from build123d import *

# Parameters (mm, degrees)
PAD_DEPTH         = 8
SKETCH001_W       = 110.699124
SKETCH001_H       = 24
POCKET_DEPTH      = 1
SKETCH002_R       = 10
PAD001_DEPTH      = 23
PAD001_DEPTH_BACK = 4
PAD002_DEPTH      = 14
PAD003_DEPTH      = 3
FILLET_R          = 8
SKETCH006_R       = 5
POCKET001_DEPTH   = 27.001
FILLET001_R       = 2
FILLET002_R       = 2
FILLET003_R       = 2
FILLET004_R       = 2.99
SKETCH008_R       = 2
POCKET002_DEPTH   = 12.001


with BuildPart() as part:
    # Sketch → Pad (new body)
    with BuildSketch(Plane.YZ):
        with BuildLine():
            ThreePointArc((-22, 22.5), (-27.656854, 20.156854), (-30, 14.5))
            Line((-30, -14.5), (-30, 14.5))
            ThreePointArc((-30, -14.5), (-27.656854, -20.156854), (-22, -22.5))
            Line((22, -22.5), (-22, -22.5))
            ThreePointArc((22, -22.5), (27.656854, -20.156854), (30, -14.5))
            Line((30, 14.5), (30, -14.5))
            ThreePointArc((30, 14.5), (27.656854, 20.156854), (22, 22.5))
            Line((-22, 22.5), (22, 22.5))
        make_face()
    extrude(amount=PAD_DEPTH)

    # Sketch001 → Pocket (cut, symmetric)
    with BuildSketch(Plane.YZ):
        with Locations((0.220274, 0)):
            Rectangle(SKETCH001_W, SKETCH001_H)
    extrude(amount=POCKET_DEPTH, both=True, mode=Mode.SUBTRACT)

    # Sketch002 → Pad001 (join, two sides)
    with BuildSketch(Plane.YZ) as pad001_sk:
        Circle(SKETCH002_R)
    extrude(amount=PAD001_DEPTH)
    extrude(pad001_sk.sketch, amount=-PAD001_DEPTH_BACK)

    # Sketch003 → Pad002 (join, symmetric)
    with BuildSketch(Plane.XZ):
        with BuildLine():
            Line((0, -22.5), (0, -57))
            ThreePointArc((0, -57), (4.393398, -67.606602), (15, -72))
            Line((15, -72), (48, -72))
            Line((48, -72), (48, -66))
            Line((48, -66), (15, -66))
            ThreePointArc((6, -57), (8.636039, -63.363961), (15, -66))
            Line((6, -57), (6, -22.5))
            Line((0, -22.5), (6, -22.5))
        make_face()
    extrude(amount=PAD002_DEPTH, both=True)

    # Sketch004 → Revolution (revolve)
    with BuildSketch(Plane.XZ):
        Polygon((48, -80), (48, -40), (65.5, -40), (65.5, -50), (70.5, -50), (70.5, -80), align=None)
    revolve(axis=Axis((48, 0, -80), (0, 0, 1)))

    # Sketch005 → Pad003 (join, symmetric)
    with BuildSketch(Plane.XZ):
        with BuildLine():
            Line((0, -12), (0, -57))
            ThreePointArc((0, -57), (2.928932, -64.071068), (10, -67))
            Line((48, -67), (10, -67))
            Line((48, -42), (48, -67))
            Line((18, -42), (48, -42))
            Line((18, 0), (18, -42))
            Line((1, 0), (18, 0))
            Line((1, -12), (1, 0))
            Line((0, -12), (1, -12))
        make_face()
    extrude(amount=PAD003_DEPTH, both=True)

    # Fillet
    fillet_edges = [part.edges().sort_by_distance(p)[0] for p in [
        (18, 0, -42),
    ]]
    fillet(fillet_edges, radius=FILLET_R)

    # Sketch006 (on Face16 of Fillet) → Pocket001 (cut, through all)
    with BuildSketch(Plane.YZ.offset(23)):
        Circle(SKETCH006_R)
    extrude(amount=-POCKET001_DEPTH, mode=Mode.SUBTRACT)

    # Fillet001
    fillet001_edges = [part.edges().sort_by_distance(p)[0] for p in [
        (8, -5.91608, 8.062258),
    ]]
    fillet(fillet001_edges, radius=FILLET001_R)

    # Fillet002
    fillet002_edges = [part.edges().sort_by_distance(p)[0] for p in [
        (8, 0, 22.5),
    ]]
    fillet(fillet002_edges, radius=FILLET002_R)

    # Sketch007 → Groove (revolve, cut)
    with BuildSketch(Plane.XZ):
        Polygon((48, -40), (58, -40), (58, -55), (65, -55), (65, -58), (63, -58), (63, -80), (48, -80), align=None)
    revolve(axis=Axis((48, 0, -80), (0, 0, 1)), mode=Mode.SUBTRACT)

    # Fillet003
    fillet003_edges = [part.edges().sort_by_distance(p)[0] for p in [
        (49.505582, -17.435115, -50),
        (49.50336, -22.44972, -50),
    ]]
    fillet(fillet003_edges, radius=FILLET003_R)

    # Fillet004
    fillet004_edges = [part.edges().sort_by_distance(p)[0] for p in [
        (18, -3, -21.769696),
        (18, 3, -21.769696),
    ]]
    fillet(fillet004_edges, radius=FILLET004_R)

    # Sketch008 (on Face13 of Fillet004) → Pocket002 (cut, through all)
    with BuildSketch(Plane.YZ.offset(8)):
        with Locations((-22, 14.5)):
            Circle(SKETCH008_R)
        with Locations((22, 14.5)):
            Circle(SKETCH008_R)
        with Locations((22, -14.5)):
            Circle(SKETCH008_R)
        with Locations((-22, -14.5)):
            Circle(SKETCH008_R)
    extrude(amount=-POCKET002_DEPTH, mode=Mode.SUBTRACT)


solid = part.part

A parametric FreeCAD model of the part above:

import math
import FreeCAD as App
import Part
import Sketcher
from FreeCAD import Vector


def edges_at(feature, points):
    """Names of the edges that pass closest to the given points."""
    edges = feature.Shape.Edges
    near = lambda p: min(range(len(edges)), key=lambda i: edges[i].distToShape(Part.Vertex(*p))[0])
    return sorted({f"Edge{near(p) + 1}" for p in points})


def add_polygon(sketch, points):
    """Adds a closed chain of lines whose ends are joined by coincident constraints."""
    first, n = sketch.GeometryCount, len(points)
    for a, b in zip(points, points[1:] + points[:1]):
        sketch.addGeometry(Part.LineSegment(App.Vector(*a, 0), App.Vector(*b, 0)), False)
    for i in range(n):
        sketch.addConstraint(Sketcher.Constraint("Coincident", first + i, 2, first + (i + 1) % n, 1))

doc = App.newDocument("Part")
params = doc.addObject("Spreadsheet::Sheet", "Params")
for row, (alias, value) in enumerate([
    ("sketch1_radius", "8.000001 mm"),
    ("sketch1_width", "44 mm"),
    ("sketch1_height", "29 mm"),
    ("pad1_length", "8 mm"),
    ("sketch2_height", "24 mm"),
    ("pocket1_length", "2 mm"),
    ("sketch3_diameter", "20 mm"),
    ("pad2_length", "23 mm"),
    ("pad2_length2", "4 mm"),
    ("sketch4_radius", "14.999999 mm"),
    ("sketch4_radius2", "9 mm"),
    ("sketch4_width", "33 mm"),
    ("sketch4_height", "34.5 mm"),
    ("pad3_length", "28 mm"),
    ("sketch5_width", "5 mm"),
    ("sketch5_height", "40 mm"),
    ("sketch5_height2", "30 mm"),
    ("sketch5_width2", "22.5 mm"),
    ("revolution_angle", "360 deg"),
    ("sketch6_radius", "9.999999 mm"),
    ("sketch6_width", "38 mm"),
    ("sketch6_width2", "30 mm"),
    ("sketch6_width3", "17 mm"),
    ("sketch6_height", "45 mm"),
    ("pad4_length", "6 mm"),
    ("fillet_radius", "8 mm"),
    ("sketch7_diameter", "10 mm"),
    ("fillet2_radius", "2 mm"),
    ("fillet3_radius", "2 mm"),
    ("sketch8_width", "10 mm"),
    ("sketch8_width2", "15 mm"),
    ("sketch8_width3", "2 mm"),
    ("sketch8_height", "40 mm"),
    ("sketch8_height2", "22 mm"),
    ("groove_angle", "360 deg"),
    ("fillet4_radius", "2 mm"),
    ("fillet5_radius", "2.99 mm"),
    ("sketch9_diameter", "4 mm"),
], start=1):
    params.set(f"A{row}", alias)
    params.set(f"B{row}", "=" + value)
    params.setAlias(f"B{row}", alias)

body = doc.addObject("PartDesign::Body", "Body")

# Sketch on YZ plane
sketch1 = doc.addObject("Sketcher::SketchObject", "Sketch")
body.addObject(sketch1)
sketch1.AttachmentSupport = (doc.YZ_Plane, [""])
sketch1.MapMode = "FlatFace"
sketch1.addGeometry(Part.ArcOfCircle(Part.Circle(Vector(-22, 14, 0), Vector(0, 0, 1), 8), math.radians(90), math.radians(180)), False)
sketch1.addGeometry(Part.LineSegment(Vector(-30, 14, 0), Vector(-30, -14, 0)), False)
sketch1.addGeometry(Part.ArcOfCircle(Part.Circle(Vector(-22, -14, 0), Vector(0, 0, 1), 8), math.radians(-180), math.radians(-90)), False)
sketch1.addGeometry(Part.LineSegment(Vector(-22, -22, 0), Vector(22, -22, 0)), False)
sketch1.addGeometry(Part.ArcOfCircle(Part.Circle(Vector(22, -14, 0), Vector(0, 0, 1), 8), math.radians(-90), math.radians(0)), False)
sketch1.addGeometry(Part.LineSegment(Vector(30, -14, 0), Vector(30, 14, 0)), False)
sketch1.addGeometry(Part.ArcOfCircle(Part.Circle(Vector(22, 14, 0), Vector(0, 0, 1), 8), math.radians(0), math.radians(90)), False)
sketch1.addGeometry(Part.LineSegment(Vector(22, 22, 0), Vector(-22, 22, 0)), False)
sketch1.addConstraint(Sketcher.Constraint("Tangent", 0, 2, 1, 1))
sketch1.addConstraint(Sketcher.Constraint("Tangent", 1, 2, 2, 1))
sketch1.addConstraint(Sketcher.Constraint("Tangent", 2, 2, 3, 1))
sketch1.addConstraint(Sketcher.Constraint("Tangent", 3, 2, 4, 1))
sketch1.addConstraint(Sketcher.Constraint("Tangent", 4, 2, 5, 1))
sketch1.addConstraint(Sketcher.Constraint("Tangent", 5, 2, 6, 1))
sketch1.addConstraint(Sketcher.Constraint("Tangent", 6, 2, 7, 1))
sketch1.addConstraint(Sketcher.Constraint("Tangent", 7, 2, 0, 1))
sketch1.addConstraint(Sketcher.Constraint("Vertical", 1))
sketch1.addConstraint(Sketcher.Constraint("Horizontal", 3))
sketch1.addConstraint(Sketcher.Constraint("Vertical", 5))
sketch1.addConstraint(Sketcher.Constraint("Horizontal", 7))
sketch1.addConstraint(Sketcher.Constraint("Equal", 0, 2))
sketch1.addConstraint(Sketcher.Constraint("Equal", 2, 4))
sketch1.addConstraint(Sketcher.Constraint("Equal", 4, 6))
sketch1.addConstraint(Sketcher.Constraint("Symmetric", 0, 3, 4, 3, -1, 1))
sketch1.addConstraint(Sketcher.Constraint("Radius", 0, 8.000001))
sketch1.addConstraint(Sketcher.Constraint("DistanceX", 3, 1, 3, 2, 44.0))
sketch1.addConstraint(Sketcher.Constraint("DistanceY", 1, 2, 1, 1, 29.0))
sketch1.setExpression("Constraints[16]", "Params.sketch1_radius")
sketch1.setExpression("Constraints[17]", "Params.sketch1_width")
sketch1.setExpression("Constraints[18]", "Params.sketch1_height")
pad1 = doc.addObject("PartDesign::Pad", "Pad")
body.addObject(pad1)
pad1.Profile = sketch1
pad1.setExpression("Length", "Params.pad1_length")

# Sketch on YZ plane
sketch2 = doc.addObject("Sketcher::SketchObject", "Sketch001")
body.addObject(sketch2)
sketch2.AttachmentSupport = (doc.YZ_Plane, [""])
sketch2.MapMode = "FlatFace"
add_polygon(sketch2, [(-55, 12), (-55, -12), (56, -12), (56, 12)])  # lines 0-3
sketch2.addConstraint(Sketcher.Constraint("Vertical", 0))
sketch2.addConstraint(Sketcher.Constraint("Horizontal", 1))
sketch2.addConstraint(Sketcher.Constraint("Vertical", 2))
sketch2.addConstraint(Sketcher.Constraint("Horizontal", 3))
sketch2.addConstraint(Sketcher.Constraint("DistanceY", 0, 2, 0, 1, 24.0))
sketch2.addConstraint(Sketcher.Constraint("DistanceY", 0, 2, -1, 1, 12.0))
sketch2.addConstraint(Sketcher.Constraint("DistanceX", 1, 1, 1, 2, 110.699124))
sketch2.addConstraint(Sketcher.Constraint("DistanceX", 0, 2, -1, 1, 55.129288))
sketch2.setExpression("Constraints[8]", "Params.sketch2_height")
pocket1 = doc.addObject("PartDesign::Pocket", "Pocket")
body.addObject(pocket1)
pocket1.Profile = sketch2
pocket1.setExpression("Length", "Params.pocket1_length")
pocket1.Midplane = True

# Sketch on YZ plane
sketch3 = doc.addObject("Sketcher::SketchObject", "Sketch002")
body.addObject(sketch3)
sketch3.AttachmentSupport = (doc.YZ_Plane, [""])
sketch3.MapMode = "FlatFace"
sketch3.addGeometry(Part.Circle(Vector(0, 0, 0), Vector(0, 0, 1), 10), False)
sketch3.addConstraint(Sketcher.Constraint("Coincident", 0, 3, -1, 1))
sketch3.addConstraint(Sketcher.Constraint("Diameter", 0, 20.0))
sketch3.setExpression("Constraints[1]", "Params.sketch3_diameter")
pad2 = doc.addObject("PartDesign::Pad", "Pad001")
body.addObject(pad2)
pad2.Profile = sketch3
pad2.Type = "TwoLengths"
pad2.setExpression("Length", "Params.pad2_length")
pad2.setExpression("Length2", "Params.pad2_length2")

# Sketch on XZ plane
sketch4 = doc.addObject("Sketcher::SketchObject", "Sketch003")
body.addObject(sketch4)
sketch4.AttachmentSupport = (doc.XZ_Plane, [""])
sketch4.MapMode = "FlatFace"
sketch4.addGeometry(Part.LineSegment(Vector(0, -22, 0), Vector(0, -57, 0)), False)
sketch4.addGeometry(Part.ArcOfCircle(Part.Circle(Vector(15, -57, 0), Vector(0, 0, 1), 15), math.radians(180), math.radians(270)), False)
sketch4.addGeometry(Part.LineSegment(Vector(15, -72, 0), Vector(48, -72, 0)), False)
sketch4.addGeometry(Part.LineSegment(Vector(48, -72, 0), Vector(48, -66, 0)), False)
sketch4.addGeometry(Part.LineSegment(Vector(48, -66, 0), Vector(15, -66, 0)), False)
sketch4.addGeometry(Part.ArcOfCircle(Part.Circle(Vector(15, -57, 0), Vector(0, 0, 1), 9), math.radians(-180), math.radians(-90)), False)
sketch4.addGeometry(Part.LineSegment(Vector(6, -57, 0), Vector(6, -22, 0)), False)
sketch4.addGeometry(Part.LineSegment(Vector(6, -22, 0), Vector(0, -22, 0)), False)
sketch4.addConstraint(Sketcher.Constraint("Tangent", 0, 2, 1, 1))
sketch4.addConstraint(Sketcher.Constraint("Tangent", 1, 2, 2, 1))
sketch4.addConstraint(Sketcher.Constraint("Coincident", 2, 2, 3, 1))
sketch4.addConstraint(Sketcher.Constraint("Coincident", 3, 2, 4, 1))
sketch4.addConstraint(Sketcher.Constraint("Tangent", 4, 2, 5, 2))
sketch4.addConstraint(Sketcher.Constraint("Tangent", 5, 1, 6, 1))
sketch4.addConstraint(Sketcher.Constraint("Coincident", 6, 2, 7, 1))
sketch4.addConstraint(Sketcher.Constraint("Coincident", 7, 2, 0, 1))
sketch4.addConstraint(Sketcher.Constraint("Vertical", 0))
sketch4.addConstraint(Sketcher.Constraint("Horizontal", 2))
sketch4.addConstraint(Sketcher.Constraint("Vertical", 3))
sketch4.addConstraint(Sketcher.Constraint("Horizontal", 4))
sketch4.addConstraint(Sketcher.Constraint("Vertical", 6))
sketch4.addConstraint(Sketcher.Constraint("Horizontal", 7))
sketch4.addConstraint(Sketcher.Constraint("Coincident", 5, 3, 1, 3))
sketch4.addConstraint(Sketcher.Constraint("PointOnObject", 0, 2, -2))
sketch4.addConstraint(Sketcher.Constraint("Radius", 1, 14.999999))
sketch4.addConstraint(Sketcher.Constraint("Radius", 5, 9.0))
sketch4.addConstraint(Sketcher.Constraint("DistanceX", 2, 1, 2, 2, 33.0))
sketch4.addConstraint(Sketcher.Constraint("DistanceY", 0, 2, 0, 1, 34.5))
sketch4.addConstraint(Sketcher.Constraint("DistanceY", 1, 3, -1, 1, 57.000001))
sketch4.setExpression("Constraints[16]", "Params.sketch4_radius")
sketch4.setExpression("Constraints[17]", "Params.sketch4_radius2")
sketch4.setExpression("Constraints[18]", "Params.sketch4_width")
sketch4.setExpression("Constraints[19]", "Params.sketch4_height")
pad3 = doc.addObject("PartDesign::Pad", "Pad002")
body.addObject(pad3)
pad3.Profile = sketch4
pad3.setExpression("Length", "Params.pad3_length")
pad3.Midplane = True

# Sketch on XZ plane
sketch5 = doc.addObject("Sketcher::SketchObject", "Sketch004")
body.addObject(sketch5)
sketch5.AttachmentSupport = (doc.XZ_Plane, [""])
sketch5.MapMode = "FlatFace"
add_polygon(sketch5, [(48, -40), (48, -80), (70, -80), (70, -50), (66, -50), (66, -40)])  # lines 0-5
sketch5.addGeometry(Part.LineSegment(Vector(48, -80, 0), Vector(48, -40, 0)), True)  # axis
sketch5.addConstraint(Sketcher.Constraint("Vertical", 0))
sketch5.addConstraint(Sketcher.Constraint("Horizontal", 1))
sketch5.addConstraint(Sketcher.Constraint("Vertical", 2))
sketch5.addConstraint(Sketcher.Constraint("Horizontal", 3))
sketch5.addConstraint(Sketcher.Constraint("Vertical", 4))
sketch5.addConstraint(Sketcher.Constraint("Horizontal", 5))
sketch5.addConstraint(Sketcher.Constraint("Vertical", 6))
sketch5.addConstraint(Sketcher.Constraint("Coincident", 6, 1, 0, 2))
sketch5.addConstraint(Sketcher.Constraint("Horizontal", 4, 2, 6, 2))
sketch5.addConstraint(Sketcher.Constraint("DistanceX", 3, 2, 3, 1, 5.0))
sketch5.addConstraint(Sketcher.Constraint("DistanceY", 0, 2, 0, 1, 40.0))
sketch5.addConstraint(Sketcher.Constraint("DistanceY", 2, 1, 2, 2, 30.0))
sketch5.addConstraint(Sketcher.Constraint("DistanceX", 1, 1, 1, 2, 22.5))
sketch5.addConstraint(Sketcher.Constraint("DistanceX", -1, 1, 0, 2, 48.0))
sketch5.addConstraint(Sketcher.Constraint("DistanceY", 0, 2, -1, 1, 80.0))
sketch5.setExpression("Constraints[15]", "Params.sketch5_width")
sketch5.setExpression("Constraints[16]", "Params.sketch5_height")
sketch5.setExpression("Constraints[17]", "Params.sketch5_height2")
sketch5.setExpression("Constraints[18]", "Params.sketch5_width2")
revolution = doc.addObject("PartDesign::Revolution", "Revolution")
body.addObject(revolution)
revolution.Profile = sketch5
revolution.ReferenceAxis = (sketch5, ["Axis0"])
revolution.setExpression("Angle", "Params.revolution_angle")

# Sketch on XZ plane
sketch6 = doc.addObject("Sketcher::SketchObject", "Sketch005")
body.addObject(sketch6)
sketch6.AttachmentSupport = (doc.XZ_Plane, [""])
sketch6.MapMode = "FlatFace"
sketch6.addGeometry(Part.LineSegment(Vector(0, -12, 0), Vector(0, -57, 0)), False)
sketch6.addGeometry(Part.ArcOfCircle(Part.Circle(Vector(10, -57, 0), Vector(0, 0, 1), 10), math.radians(180), math.radians(270)), False)
sketch6.addGeometry(Part.LineSegment(Vector(10, -67, 0), Vector(48, -67, 0)), False)
sketch6.addGeometry(Part.LineSegment(Vector(48, -67, 0), Vector(48, -42, 0)), False)
sketch6.addGeometry(Part.LineSegment(Vector(48, -42, 0), Vector(18, -42, 0)), False)
sketch6.addGeometry(Part.LineSegment(Vector(18, -42, 0), Vector(18, 0, 0)), False)
sketch6.addGeometry(Part.LineSegment(Vector(18, 0, 0), Vector(1, 0, 0)), False)
sketch6.addGeometry(Part.LineSegment(Vector(1, 0, 0), Vector(1, -12, 0)), False)
sketch6.addGeometry(Part.LineSegment(Vector(1, -12, 0), Vector(0, -12, 0)), False)
sketch6.addConstraint(Sketcher.Constraint("Tangent", 0, 2, 1, 1))
sketch6.addConstraint(Sketcher.Constraint("Tangent", 1, 2, 2, 1))
sketch6.addConstraint(Sketcher.Constraint("Coincident", 2, 2, 3, 1))
sketch6.addConstraint(Sketcher.Constraint("Coincident", 3, 2, 4, 1))
sketch6.addConstraint(Sketcher.Constraint("Coincident", 4, 2, 5, 1))
sketch6.addConstraint(Sketcher.Constraint("Coincident", 5, 2, 6, 1))
sketch6.addConstraint(Sketcher.Constraint("Coincident", 6, 2, 7, 1))
sketch6.addConstraint(Sketcher.Constraint("Coincident", 7, 2, 8, 1))
sketch6.addConstraint(Sketcher.Constraint("Coincident", 8, 2, 0, 1))
sketch6.addConstraint(Sketcher.Constraint("Vertical", 0))
sketch6.addConstraint(Sketcher.Constraint("Horizontal", 2))
sketch6.addConstraint(Sketcher.Constraint("Vertical", 3))
sketch6.addConstraint(Sketcher.Constraint("Horizontal", 4))
sketch6.addConstraint(Sketcher.Constraint("Vertical", 5))
sketch6.addConstraint(Sketcher.Constraint("Horizontal", 6))
sketch6.addConstraint(Sketcher.Constraint("Vertical", 7))
sketch6.addConstraint(Sketcher.Constraint("Horizontal", 8))
sketch6.addConstraint(Sketcher.Constraint("PointOnObject", 0, 2, -2))
sketch6.addConstraint(Sketcher.Constraint("PointOnObject", 5, 2, -1))
sketch6.addConstraint(Sketcher.Constraint("Radius", 1, 9.999999))
sketch6.addConstraint(Sketcher.Constraint("DistanceX", 2, 1, 2, 2, 38.0))
sketch6.addConstraint(Sketcher.Constraint("DistanceX", 4, 2, 4, 1, 30.0))
sketch6.addConstraint(Sketcher.Constraint("DistanceX", 6, 2, 6, 1, 17.0))
sketch6.addConstraint(Sketcher.Constraint("DistanceY", 0, 2, 0, 1, 45.0))
sketch6.addConstraint(Sketcher.Constraint("DistanceY", 3, 1, 3, 2, 25.0))
sketch6.addConstraint(Sketcher.Constraint("DistanceY", 5, 1, 5, 2, 42.0))
sketch6.setExpression("Constraints[19]", "Params.sketch6_radius")
sketch6.setExpression("Constraints[20]", "Params.sketch6_width")
sketch6.setExpression("Constraints[21]", "Params.sketch6_width2")
sketch6.setExpression("Constraints[22]", "Params.sketch6_width3")
sketch6.setExpression("Constraints[23]", "Params.sketch6_height")
pad4 = doc.addObject("PartDesign::Pad", "Pad003")
body.addObject(pad4)
pad4.Profile = sketch6
pad4.setExpression("Length", "Params.pad4_length")
pad4.Midplane = True
doc.recompute()

fillet = doc.addObject("PartDesign::Fillet", "Fillet")
body.addObject(fillet)
fillet.Base = (pad4, edges_at(pad4, [(18, 0, -42)]))
fillet.setExpression("Radius", "Params.fillet_radius")

# Sketch on YZ plane
sketch7 = doc.addObject("Sketcher::SketchObject", "Sketch006")
body.addObject(sketch7)
sketch7.AttachmentSupport = (doc.YZ_Plane, [""])
sketch7.MapMode = "FlatFace"
sketch7.AttachmentOffset = App.Placement(Vector(0, 0, 23), App.Rotation())
sketch7.addGeometry(Part.Circle(Vector(0, 0, 0), Vector(0, 0, 1), 5), False)
sketch7.addConstraint(Sketcher.Constraint("Coincident", 0, 3, -1, 1))
sketch7.addConstraint(Sketcher.Constraint("Diameter", 0, 10.0))
sketch7.setExpression("Constraints[1]", "Params.sketch7_diameter")
pocket2 = doc.addObject("PartDesign::Pocket", "Pocket001")
body.addObject(pocket2)
pocket2.Profile = sketch7
pocket2.Type = "ThroughAll"
doc.recompute()

fillet2 = doc.addObject("PartDesign::Fillet", "Fillet001")
body.addObject(fillet2)
fillet2.Base = (pocket2, edges_at(pocket2, [(8, -5.916, 8.062)]))
fillet2.setExpression("Radius", "Params.fillet2_radius")
doc.recompute()

fillet3 = doc.addObject("PartDesign::Fillet", "Fillet002")
body.addObject(fillet3)
fillet3.Base = (fillet2, edges_at(fillet2, [(8, 0, 22.5)]))
fillet3.setExpression("Radius", "Params.fillet3_radius")

# Sketch on XZ plane
sketch8 = doc.addObject("Sketcher::SketchObject", "Sketch007")
body.addObject(sketch8)
sketch8.AttachmentSupport = (doc.XZ_Plane, [""])
sketch8.MapMode = "FlatFace"
add_polygon(sketch8, [(58, -40), (48, -40), (48, -80), (63, -80), (63, -58), (65, -58), (65, -55), (58, -55)])  # lines 0-7
sketch8.addGeometry(Part.LineSegment(Vector(48, -80, 0), Vector(48, -40, 0)), True)  # axis
sketch8.addConstraint(Sketcher.Constraint("Horizontal", 0))
sketch8.addConstraint(Sketcher.Constraint("Vertical", 1))
sketch8.addConstraint(Sketcher.Constraint("Horizontal", 2))
sketch8.addConstraint(Sketcher.Constraint("Vertical", 3))
sketch8.addConstraint(Sketcher.Constraint("Horizontal", 4))
sketch8.addConstraint(Sketcher.Constraint("Vertical", 5))
sketch8.addConstraint(Sketcher.Constraint("Horizontal", 6))
sketch8.addConstraint(Sketcher.Constraint("Vertical", 7))
sketch8.addConstraint(Sketcher.Constraint("Vertical", 8))
sketch8.addConstraint(Sketcher.Constraint("Coincident", 8, 1, 1, 2))
sketch8.addConstraint(Sketcher.Constraint("Horizontal", 7, 2, 8, 2))
sketch8.addConstraint(Sketcher.Constraint("Equal", 2, 7))
sketch8.addConstraint(Sketcher.Constraint("DistanceX", 0, 2, 0, 1, 10.0))
sketch8.addConstraint(Sketcher.Constraint("DistanceX", 2, 1, 2, 2, 15.0))
sketch8.addConstraint(Sketcher.Constraint("DistanceX", 4, 1, 4, 2, 2.0))
sketch8.addConstraint(Sketcher.Constraint("DistanceY", 1, 2, 1, 1, 40.0))
sketch8.addConstraint(Sketcher.Constraint("DistanceY", 3, 1, 3, 2, 22.0))
sketch8.addConstraint(Sketcher.Constraint("DistanceX", -1, 1, 0, 2, 48.0))
sketch8.addConstraint(Sketcher.Constraint("DistanceY", 0, 2, -1, 1, 40.0))
sketch8.setExpression("Constraints[20]", "Params.sketch8_width")
sketch8.setExpression("Constraints[21]", "Params.sketch8_width2")
sketch8.setExpression("Constraints[22]", "Params.sketch8_width3")
sketch8.setExpression("Constraints[23]", "Params.sketch8_height")
sketch8.setExpression("Constraints[24]", "Params.sketch8_height2")
groove = doc.addObject("PartDesign::Groove", "Groove")
body.addObject(groove)
groove.Profile = sketch8
groove.ReferenceAxis = (sketch8, ["Axis0"])
groove.setExpression("Angle", "Params.groove_angle")
doc.recompute()

fillet4 = doc.addObject("PartDesign::Fillet", "Fillet003")
body.addObject(fillet4)
fillet4.Base = (groove, edges_at(groove, [(49.506, -17.435, -50), (49.503, -22.45, -50)]))
fillet4.setExpression("Radius", "Params.fillet4_radius")
doc.recompute()

fillet5 = doc.addObject("PartDesign::Fillet", "Fillet004")
body.addObject(fillet5)
fillet5.Base = (fillet4, edges_at(fillet4, [(18, -3, -21.77), (18, 3, -21.77)]))
fillet5.setExpression("Radius", "Params.fillet5_radius")

# Sketch on YZ plane
sketch9 = doc.addObject("Sketcher::SketchObject", "Sketch008")
body.addObject(sketch9)
sketch9.AttachmentSupport = (doc.YZ_Plane, [""])
sketch9.MapMode = "FlatFace"
sketch9.AttachmentOffset = App.Placement(Vector(0, 0, 8), App.Rotation())
sketch9.addGeometry(Part.Circle(Vector(-22, 14.5, 0), Vector(0, 0, 1), 2), False)
sketch9.addGeometry(Part.Circle(Vector(22, 14.5, 0), Vector(0, 0, 1), 2), False)
sketch9.addGeometry(Part.Circle(Vector(22, -14.5, 0), Vector(0, 0, 1), 2), False)
sketch9.addGeometry(Part.Circle(Vector(-22, -14.5, 0), Vector(0, 0, 1), 2), False)
sketch9.addConstraint(Sketcher.Constraint("Equal", 0, 1))
sketch9.addConstraint(Sketcher.Constraint("Equal", 1, 2))
sketch9.addConstraint(Sketcher.Constraint("Equal", 2, 3))
sketch9.addConstraint(Sketcher.Constraint("Symmetric", 0, 3, 2, 3, -1, 1))
sketch9.addConstraint(Sketcher.Constraint("Symmetric", 1, 3, 3, 3, -1, 1))
sketch9.addConstraint(Sketcher.Constraint("Symmetric", 0, 3, 1, 3, -2))
sketch9.addConstraint(Sketcher.Constraint("Diameter", 0, 4.0))
sketch9.addConstraint(Sketcher.Constraint("DistanceX", 0, 3, -1, 1, 22.0))
sketch9.addConstraint(Sketcher.Constraint("DistanceY", 2, 3, 1, 3, 29.0))
sketch9.setExpression("Constraints[6]", "Params.sketch9_diameter")
pocket3 = doc.addObject("PartDesign::Pocket", "Pocket002")
body.addObject(pocket3)
pocket3.Profile = sketch9
pocket3.Type = "ThroughAll"

doc.recompute()
